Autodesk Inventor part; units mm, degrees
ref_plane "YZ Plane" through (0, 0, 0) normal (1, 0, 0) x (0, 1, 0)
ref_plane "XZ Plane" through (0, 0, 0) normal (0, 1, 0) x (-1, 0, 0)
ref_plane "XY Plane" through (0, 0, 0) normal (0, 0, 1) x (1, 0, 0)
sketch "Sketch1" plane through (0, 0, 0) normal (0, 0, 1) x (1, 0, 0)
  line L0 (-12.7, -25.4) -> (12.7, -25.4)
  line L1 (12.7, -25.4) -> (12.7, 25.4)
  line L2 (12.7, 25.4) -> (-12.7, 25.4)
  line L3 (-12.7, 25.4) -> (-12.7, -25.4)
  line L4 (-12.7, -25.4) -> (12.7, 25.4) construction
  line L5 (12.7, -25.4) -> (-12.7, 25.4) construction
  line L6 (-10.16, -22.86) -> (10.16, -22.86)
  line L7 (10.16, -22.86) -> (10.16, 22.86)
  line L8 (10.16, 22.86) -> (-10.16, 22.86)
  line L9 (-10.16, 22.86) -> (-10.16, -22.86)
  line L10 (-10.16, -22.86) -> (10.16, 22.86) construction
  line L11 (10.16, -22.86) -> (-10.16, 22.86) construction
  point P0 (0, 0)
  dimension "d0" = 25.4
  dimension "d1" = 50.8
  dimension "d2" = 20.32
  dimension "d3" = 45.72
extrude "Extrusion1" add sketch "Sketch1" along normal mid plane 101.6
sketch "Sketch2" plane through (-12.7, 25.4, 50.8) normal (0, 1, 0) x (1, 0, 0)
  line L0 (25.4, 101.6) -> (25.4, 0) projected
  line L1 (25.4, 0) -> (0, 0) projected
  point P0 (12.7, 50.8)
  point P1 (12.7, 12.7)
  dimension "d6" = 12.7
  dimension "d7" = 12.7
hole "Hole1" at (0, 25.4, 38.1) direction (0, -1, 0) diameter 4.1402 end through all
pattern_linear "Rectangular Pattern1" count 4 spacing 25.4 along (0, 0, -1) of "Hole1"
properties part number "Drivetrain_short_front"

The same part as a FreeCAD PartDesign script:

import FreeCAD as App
import Part
import Sketcher

V = App.Vector
Q = App.Units.Quantity


def add_polygon(sketch, points):
    """Adds a closed chain of lines whose ends are joined by coincident constraints."""
    first, n = sketch.GeometryCount, len(points)
    for a, b in zip(points, points[1:] + points[:1]):
        sketch.addGeometry(Part.LineSegment(App.Vector(*a, 0), App.Vector(*b, 0)), False)
    for i in range(n):
        sketch.addConstraint(Sketcher.Constraint("Coincident", first + i, 2, first + (i + 1) % n, 1))

doc = App.newDocument("Part")
params = doc.addObject("Spreadsheet::Sheet", "Params")
for row, (alias, value) in enumerate([
    ("sketch1_width", "1 in"),
    ("sketch1_height", "2 in"),
    ("sketch1_width2", "0.8 in"),
    ("sketch1_height2", "1.8 in"),
    ("pad1_length", "4 in"),
    ("sketch2_diameter", "0.163 in"),
    ("hole_diameter", "0.163 in"),
    ("linearpattern_pitch", "1 in"),
], start=1):
    params.set(f"A{row}", alias)
    params.set(f"B{row}", "=" + value)
    params.setAlias(f"B{row}", alias)

body = doc.addObject("PartDesign::Body", "Body")

# Sketch on XY plane
sketch1 = doc.addObject("Sketcher::SketchObject", "Sketch")
body.addObject(sketch1)
sketch1.AttachmentSupport = (doc.XY_Plane, [""])
sketch1.MapMode = "FlatFace"
add_polygon(sketch1, [(-13, 25), (-13, -25), (13, -25), (13, 25)])  # lines 0-3
add_polygon(sketch1, [(10, -23), (-10, -23), (-10, 23), (10, 23)])  # lines 4-7
sketch1.addConstraint([
    Sketcher.Constraint("Vertical", 0),
    Sketcher.Constraint("Horizontal", 1),
    Sketcher.Constraint("Vertical", 2),
    Sketcher.Constraint("Horizontal", 3),
    Sketcher.Constraint("Horizontal", 4),
    Sketcher.Constraint("Vertical", 5),
    Sketcher.Constraint("Horizontal", 6),
    Sketcher.Constraint("Vertical", 7),
    Sketcher.Constraint("Symmetric", 0, 2, 2, 2, -1, 1),
    Sketcher.Constraint("Symmetric", 4, 2, 6, 2, -1, 1),
    Sketcher.Constraint("DistanceX", 1, 1, 1, 2, Q("1 in")),
    Sketcher.Constraint("DistanceY", 0, 2, 0, 1, Q("2 in")),
    Sketcher.Constraint("DistanceX", 4, 2, 4, 1, Q("0.8 in")),
    Sketcher.Constraint("DistanceY", 5, 1, 5, 2, Q("1.8 in")),
])
sketch1.setExpression("Constraints[18]", "Params.sketch1_width")
sketch1.setExpression("Constraints[19]", "Params.sketch1_height")
sketch1.setExpression("Constraints[20]", "Params.sketch1_width2")
sketch1.setExpression("Constraints[21]", "Params.sketch1_height2")
pad1 = doc.addObject("PartDesign::Pad", "Pad")
body.addObject(pad1)
pad1.Profile = sketch1
pad1.setExpression("Length", "Params.pad1_length")
pad1.Midplane = True

# Sketch on XZ plane
sketch2 = doc.addObject("Sketcher::SketchObject", "Sketch001")
body.addObject(sketch2)
sketch2.AttachmentSupport = (doc.XZ_Plane, [""])
sketch2.MapMode = "FlatFace"
sketch2.AttachmentOffset = App.Placement(V(0, 0, -1 * 25.4), App.Rotation())
sketch2.addGeometry(Part.Circle(V(0, 38.1, 0), V(0, 0, 1), 2.1), False)
sketch2.addConstraint([
    Sketcher.Constraint("PointOnObject", 0, 3, -2),
    Sketcher.Constraint("Diameter", 0, Q("0.163 in")),
    Sketcher.Constraint("DistanceY", -1, 1, 0, 3, Q("1.5 in")),
])
sketch2.setExpression("Constraints[1]", "Params.sketch2_diameter")
doc.recompute()
hole = doc.addObject("PartDesign::Hole", "Hole")
body.addObject(hole)
hole.Profile = sketch2
hole.ThreadType = "None"
hole.setExpression("Diameter", "Params.hole_diameter")
hole.DepthType = "ThroughAll"
hole.Reversed = True
doc.recompute()

linearpattern = doc.addObject("PartDesign::LinearPattern", "LinearPattern")
body.addObject(linearpattern)
linearpattern.Originals = [hole]
linearpattern.Direction = (doc.Z_Axis, [""])
linearpattern.Mode = "offset"
linearpattern.setExpression("Offset", "Params.linearpattern_pitch")
linearpattern.Occurrences = 4
linearpattern.Reversed = True
body.Tip = linearpattern

doc.recompute()
